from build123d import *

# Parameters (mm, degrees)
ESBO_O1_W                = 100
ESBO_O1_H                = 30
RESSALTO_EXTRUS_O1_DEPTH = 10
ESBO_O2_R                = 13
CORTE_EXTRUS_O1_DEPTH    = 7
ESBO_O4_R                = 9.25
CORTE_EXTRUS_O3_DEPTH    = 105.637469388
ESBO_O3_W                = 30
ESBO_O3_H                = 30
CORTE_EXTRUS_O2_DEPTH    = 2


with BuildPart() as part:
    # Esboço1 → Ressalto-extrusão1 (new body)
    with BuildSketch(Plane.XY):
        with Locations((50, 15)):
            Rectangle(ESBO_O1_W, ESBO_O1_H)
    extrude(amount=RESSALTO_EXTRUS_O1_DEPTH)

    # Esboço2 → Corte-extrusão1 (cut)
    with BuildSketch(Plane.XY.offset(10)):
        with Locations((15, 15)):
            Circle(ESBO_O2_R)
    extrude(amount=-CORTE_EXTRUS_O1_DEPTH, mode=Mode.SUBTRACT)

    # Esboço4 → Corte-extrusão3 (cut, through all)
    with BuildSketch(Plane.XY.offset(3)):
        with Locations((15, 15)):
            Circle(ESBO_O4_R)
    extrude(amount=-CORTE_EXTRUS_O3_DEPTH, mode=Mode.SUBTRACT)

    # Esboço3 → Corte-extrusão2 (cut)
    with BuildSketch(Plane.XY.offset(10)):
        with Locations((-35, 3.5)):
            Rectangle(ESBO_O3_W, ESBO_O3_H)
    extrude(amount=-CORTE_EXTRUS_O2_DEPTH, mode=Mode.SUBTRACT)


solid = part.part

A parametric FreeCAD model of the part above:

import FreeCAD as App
import Part
import Sketcher
Q = App.Units.Quantity

doc = App.newDocument("Part")
body = doc.addObject("PartDesign::Body", "Body")

sketch1 = body.newObject("Sketcher::SketchObject", "Sketch")
sketch1.AttachmentSupport = (doc.getObject("XY_Plane"), [""])
sketch1.MapMode = "FlatFace"
sketch1.addGeometry([
    Part.LineSegment(App.Vector(0, 30, 0), App.Vector(0, 0, 0)),
    Part.LineSegment(App.Vector(0, 0, 0), App.Vector(100, 0, 0)),
    Part.LineSegment(App.Vector(100, 0, 0), App.Vector(100, 30, 0)),
    Part.LineSegment(App.Vector(100, 30, 0), App.Vector(0, 30, 0)),
], False)
sketch1.addConstraint([
    Sketcher.Constraint("Coincident", 0, 2, 1, 1),
    Sketcher.Constraint("Coincident", 1, 2, 2, 1),
    Sketcher.Constraint("Coincident", 2, 2, 3, 1),
    Sketcher.Constraint("Coincident", 3, 2, 0, 1),
    Sketcher.Constraint("Vertical", 0),
    Sketcher.Constraint("Horizontal", 1),
    Sketcher.Constraint("Vertical", 2),
    Sketcher.Constraint("Horizontal", 3),
    Sketcher.Constraint("Coincident", 0, 2, -1, 1),
    Sketcher.Constraint("DistanceX", 1, 1, 1, 2, Q("100 mm")),
    Sketcher.Constraint("DistanceY", 0, 2, 0, 1, Q("30 mm")),
])
pad1 = body.newObject("PartDesign::Pad", "Pad")
pad1.Profile = sketch1
pad1.Length = 10

sketch2 = body.newObject("Sketcher::SketchObject", "Sketch001")
sketch2.AttachmentSupport = (doc.getObject("XY_Plane"), [""])
sketch2.MapMode = "FlatFace"
sketch2.AttachmentOffset = App.Placement(App.Vector(0, 0, 10), App.Rotation())
sketch2.addGeometry(Part.Circle(App.Vector(15, 15, 0), App.Vector(0, 0, 1), 13), False)
sketch2.addConstraint([
    Sketcher.Constraint("Diameter", 0, Q("26 mm")),
    Sketcher.Constraint("DistanceX", -1, 1, 0, 3, Q("15 mm")),
    Sketcher.Constraint("DistanceY", -1, 1, 0, 3, Q("15 mm")),
])
pocket1 = body.newObject("PartDesign::Pocket", "Pocket")
pocket1.Profile = sketch2
pocket1.Length = 7

sketch3 = body.newObject("Sketcher::SketchObject", "Sketch002")
sketch3.AttachmentSupport = (doc.getObject("XY_Plane"), [""])
sketch3.MapMode = "FlatFace"
sketch3.AttachmentOffset = App.Placement(App.Vector(0, 0, 3), App.Rotation())
sketch3.addGeometry(Part.Circle(App.Vector(15, 15, 0), App.Vector(0, 0, 1), 9.25), False)
sketch3.addConstraint([
    Sketcher.Constraint("Diameter", 0, Q("18.5 mm")),
    Sketcher.Constraint("DistanceX", -1, 1, 0, 3, Q("15 mm")),
    Sketcher.Constraint("DistanceY", -1, 1, 0, 3, Q("15 mm")),
])
pocket2 = body.newObject("PartDesign::Pocket", "Pocket001")
pocket2.Profile = sketch3
pocket2.Type = "ThroughAll"

sketch4 = body.newObject("Sketcher::SketchObject", "Sketch003")
sketch4.AttachmentSupport = (doc.getObject("XY_Plane"), [""])
sketch4.MapMode = "FlatFace"
sketch4.AttachmentOffset = App.Placement(App.Vector(0, 0, 10), App.Rotation())
sketch4.addGeometry([
    Part.LineSegment(App.Vector(-50, 18.5, 0), App.Vector(-50, -11.5, 0)),
    Part.LineSegment(App.Vector(-50, -11.5, 0), App.Vector(-20, -11.5, 0)),
    Part.LineSegment(App.Vector(-20, -11.5, 0), App.Vector(-20, 18.5, 0)),
    Part.LineSegment(App.Vector(-20, 18.5, 0), App.Vector(-50, 18.5, 0)),
], False)
sketch4.addConstraint([
    Sketcher.Constraint("Coincident", 0, 2, 1, 1),
    Sketcher.Constraint("Coincident", 1, 2, 2, 1),
    Sketcher.Constraint("Coincident", 2, 2, 3, 1),
    Sketcher.Constraint("Coincident", 3, 2, 0, 1),
    Sketcher.Constraint("Vertical", 0),
    Sketcher.Constraint("Horizontal", 1),
    Sketcher.Constraint("Vertical", 2),
    Sketcher.Constraint("Horizontal", 3),
    Sketcher.Constraint("Equal", 3, 0),
    Sketcher.Constraint("DistanceX", 1, 1, 1, 2, Q("30 mm")),
    Sketcher.Constraint("DistanceX", 0, 2, -1, 1, Q("50 mm")),
    Sketcher.Constraint("DistanceY", 0, 2, -1, 1, Q("11.5 mm")),
])
pocket3 = body.newObject("PartDesign::Pocket", "Pocket002")
pocket3.Profile = sketch4
pocket3.Length = 2

doc.recompute()
